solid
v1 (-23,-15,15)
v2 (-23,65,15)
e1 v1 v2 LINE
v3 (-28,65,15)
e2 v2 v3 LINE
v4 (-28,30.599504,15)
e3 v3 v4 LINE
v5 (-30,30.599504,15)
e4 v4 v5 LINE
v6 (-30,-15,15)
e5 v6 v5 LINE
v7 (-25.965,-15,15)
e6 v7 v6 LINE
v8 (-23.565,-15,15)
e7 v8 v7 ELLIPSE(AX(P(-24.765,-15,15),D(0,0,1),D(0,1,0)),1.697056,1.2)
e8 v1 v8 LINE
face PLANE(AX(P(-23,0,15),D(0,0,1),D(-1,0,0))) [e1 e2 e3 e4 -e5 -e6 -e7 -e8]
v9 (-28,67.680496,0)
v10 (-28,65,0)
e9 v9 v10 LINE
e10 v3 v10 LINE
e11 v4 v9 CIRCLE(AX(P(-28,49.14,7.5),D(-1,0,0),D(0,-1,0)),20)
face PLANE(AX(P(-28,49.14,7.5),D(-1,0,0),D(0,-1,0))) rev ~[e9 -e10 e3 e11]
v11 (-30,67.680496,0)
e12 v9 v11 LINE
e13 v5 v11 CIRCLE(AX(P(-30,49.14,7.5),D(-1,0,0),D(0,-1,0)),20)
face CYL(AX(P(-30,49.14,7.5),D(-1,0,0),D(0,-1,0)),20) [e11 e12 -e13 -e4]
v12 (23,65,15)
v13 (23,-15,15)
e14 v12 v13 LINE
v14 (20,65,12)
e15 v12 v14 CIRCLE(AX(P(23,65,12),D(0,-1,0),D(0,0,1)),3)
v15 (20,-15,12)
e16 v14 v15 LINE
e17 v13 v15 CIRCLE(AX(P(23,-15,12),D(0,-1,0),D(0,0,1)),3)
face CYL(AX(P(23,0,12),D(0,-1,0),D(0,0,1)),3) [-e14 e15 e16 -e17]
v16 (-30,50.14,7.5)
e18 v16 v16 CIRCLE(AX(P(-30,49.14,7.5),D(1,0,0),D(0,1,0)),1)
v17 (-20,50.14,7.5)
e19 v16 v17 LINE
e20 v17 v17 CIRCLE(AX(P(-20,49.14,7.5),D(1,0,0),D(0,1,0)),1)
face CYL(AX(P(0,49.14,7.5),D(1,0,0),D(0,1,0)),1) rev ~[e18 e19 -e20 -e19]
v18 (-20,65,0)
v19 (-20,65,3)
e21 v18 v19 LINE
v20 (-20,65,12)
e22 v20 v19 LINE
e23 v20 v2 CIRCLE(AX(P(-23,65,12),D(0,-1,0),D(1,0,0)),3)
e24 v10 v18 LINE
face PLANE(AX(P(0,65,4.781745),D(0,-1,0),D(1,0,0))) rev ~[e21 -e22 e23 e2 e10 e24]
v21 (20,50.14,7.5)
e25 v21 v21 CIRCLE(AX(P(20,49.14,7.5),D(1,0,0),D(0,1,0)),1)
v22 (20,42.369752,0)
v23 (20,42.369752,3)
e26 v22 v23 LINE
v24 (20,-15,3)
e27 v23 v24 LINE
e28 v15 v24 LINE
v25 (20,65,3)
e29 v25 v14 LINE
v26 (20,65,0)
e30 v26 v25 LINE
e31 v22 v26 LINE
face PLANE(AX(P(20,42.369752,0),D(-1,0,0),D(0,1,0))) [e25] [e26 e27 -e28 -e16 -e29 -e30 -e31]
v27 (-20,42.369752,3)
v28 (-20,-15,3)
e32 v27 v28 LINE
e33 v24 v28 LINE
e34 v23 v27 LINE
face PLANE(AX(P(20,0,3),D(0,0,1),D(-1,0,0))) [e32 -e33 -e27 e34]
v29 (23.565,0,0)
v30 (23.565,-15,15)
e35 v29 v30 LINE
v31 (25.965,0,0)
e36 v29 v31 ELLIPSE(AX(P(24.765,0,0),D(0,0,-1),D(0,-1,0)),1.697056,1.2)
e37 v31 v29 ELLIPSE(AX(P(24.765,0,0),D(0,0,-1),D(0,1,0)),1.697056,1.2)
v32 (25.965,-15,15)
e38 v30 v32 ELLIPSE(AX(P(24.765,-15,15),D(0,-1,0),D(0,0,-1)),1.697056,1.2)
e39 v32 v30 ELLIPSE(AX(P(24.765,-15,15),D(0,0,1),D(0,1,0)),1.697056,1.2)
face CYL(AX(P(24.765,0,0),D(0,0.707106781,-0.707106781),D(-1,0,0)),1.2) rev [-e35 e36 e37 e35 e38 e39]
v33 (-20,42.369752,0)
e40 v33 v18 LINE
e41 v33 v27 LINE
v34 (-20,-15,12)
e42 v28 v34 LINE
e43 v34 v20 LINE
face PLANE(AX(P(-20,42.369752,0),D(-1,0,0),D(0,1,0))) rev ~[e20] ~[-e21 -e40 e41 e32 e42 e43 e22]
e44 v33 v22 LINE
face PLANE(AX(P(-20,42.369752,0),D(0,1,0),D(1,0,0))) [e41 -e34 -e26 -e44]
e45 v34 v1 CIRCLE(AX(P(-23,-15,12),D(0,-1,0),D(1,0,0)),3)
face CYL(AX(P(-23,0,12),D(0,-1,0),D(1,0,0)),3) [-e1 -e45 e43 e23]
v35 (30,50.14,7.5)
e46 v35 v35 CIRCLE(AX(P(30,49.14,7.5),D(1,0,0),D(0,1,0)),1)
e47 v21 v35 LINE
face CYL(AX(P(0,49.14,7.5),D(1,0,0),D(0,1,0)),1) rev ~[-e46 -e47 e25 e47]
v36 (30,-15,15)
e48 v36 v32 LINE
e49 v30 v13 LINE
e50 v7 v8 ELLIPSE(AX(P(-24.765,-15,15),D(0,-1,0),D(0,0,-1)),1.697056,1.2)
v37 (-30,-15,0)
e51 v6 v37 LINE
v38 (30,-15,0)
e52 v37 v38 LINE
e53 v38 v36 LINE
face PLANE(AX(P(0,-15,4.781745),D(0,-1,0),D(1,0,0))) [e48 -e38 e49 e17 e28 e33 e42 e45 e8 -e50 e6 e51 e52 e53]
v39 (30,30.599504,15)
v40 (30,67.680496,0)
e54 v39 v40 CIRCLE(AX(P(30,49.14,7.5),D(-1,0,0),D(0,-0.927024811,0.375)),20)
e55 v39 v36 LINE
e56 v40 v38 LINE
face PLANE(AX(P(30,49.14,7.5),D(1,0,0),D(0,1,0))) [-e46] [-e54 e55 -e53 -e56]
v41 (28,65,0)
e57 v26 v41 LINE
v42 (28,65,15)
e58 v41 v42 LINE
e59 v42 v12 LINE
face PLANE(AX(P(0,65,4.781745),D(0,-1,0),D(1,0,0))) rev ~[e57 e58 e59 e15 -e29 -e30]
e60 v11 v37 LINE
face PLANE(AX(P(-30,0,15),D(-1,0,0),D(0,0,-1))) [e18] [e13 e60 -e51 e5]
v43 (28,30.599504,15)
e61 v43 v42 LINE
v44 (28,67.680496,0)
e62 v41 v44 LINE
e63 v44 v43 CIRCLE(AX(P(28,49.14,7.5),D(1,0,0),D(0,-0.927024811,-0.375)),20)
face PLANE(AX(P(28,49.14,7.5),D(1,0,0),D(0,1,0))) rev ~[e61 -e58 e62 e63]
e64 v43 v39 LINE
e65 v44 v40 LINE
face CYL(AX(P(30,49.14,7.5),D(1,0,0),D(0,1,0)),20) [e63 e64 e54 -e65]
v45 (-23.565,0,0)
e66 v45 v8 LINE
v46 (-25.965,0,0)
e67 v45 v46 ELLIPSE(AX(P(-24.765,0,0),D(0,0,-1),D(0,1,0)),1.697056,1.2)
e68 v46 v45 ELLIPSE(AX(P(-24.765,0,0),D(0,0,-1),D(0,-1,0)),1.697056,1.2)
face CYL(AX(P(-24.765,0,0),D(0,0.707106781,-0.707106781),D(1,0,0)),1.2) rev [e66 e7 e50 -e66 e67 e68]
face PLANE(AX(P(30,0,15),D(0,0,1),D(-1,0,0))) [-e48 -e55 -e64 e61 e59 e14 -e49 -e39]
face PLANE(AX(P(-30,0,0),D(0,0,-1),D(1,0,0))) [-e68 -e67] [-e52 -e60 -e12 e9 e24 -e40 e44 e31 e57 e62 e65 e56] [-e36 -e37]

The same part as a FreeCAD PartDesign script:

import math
import FreeCAD as App
import Part
import Sketcher

doc = App.newDocument("Part")
body = doc.addObject("PartDesign::Body", "Body")

# Sketch on XZ plane
sketch1 = doc.addObject("Sketcher::SketchObject", "Sketch")
body.addObject(sketch1)
sketch1.AttachmentSupport = (doc.XZ_Plane, [""])
sketch1.MapMode = "FlatFace"
sketch1.addGeometry(Part.LineSegment(App.Vector(-30, 15, 0), App.Vector(-30, 0, 0)), False)
sketch1.addGeometry(Part.LineSegment(App.Vector(-30, 0, 0), App.Vector(30, 0, 0)), False)
sketch1.addGeometry(Part.LineSegment(App.Vector(30, 0, 0), App.Vector(30, 15, 0)), False)
sketch1.addGeometry(Part.LineSegment(App.Vector(30, 15, 0), App.Vector(23, 15, 0)), False)
sketch1.addGeometry(Part.ArcOfCircle(Part.Circle(App.Vector(23, 12, 0), App.Vector(0, 0, 1), 3), math.radians(90), math.radians(180)), False)
sketch1.addGeometry(Part.LineSegment(App.Vector(20, 12, 0), App.Vector(20, 3, 0)), False)
sketch1.addGeometry(Part.LineSegment(App.Vector(20, 3, 0), App.Vector(-20, 3, 0)), False)
sketch1.addGeometry(Part.LineSegment(App.Vector(-20, 3, 0), App.Vector(-20, 12, 0)), False)
sketch1.addGeometry(Part.ArcOfCircle(Part.Circle(App.Vector(-23, 12, 0), App.Vector(0, 0, 1), 3), math.radians(0), math.radians(90)), False)
sketch1.addGeometry(Part.LineSegment(App.Vector(-23, 15, 0), App.Vector(-30, 15, 0)), False)
sketch1.addConstraint(Sketcher.Constraint("Coincident", 0, 2, 1, 1))
sketch1.addConstraint(Sketcher.Constraint("Coincident", 1, 2, 2, 1))
sketch1.addConstraint(Sketcher.Constraint("Coincident", 2, 2, 3, 1))
sketch1.addConstraint(Sketcher.Constraint("Tangent", 3, 2, 4, 1))
sketch1.addConstraint(Sketcher.Constraint("Tangent", 4, 2, 5, 1))
sketch1.addConstraint(Sketcher.Constraint("Coincident", 5, 2, 6, 1))
sketch1.addConstraint(Sketcher.Constraint("Coincident", 6, 2, 7, 1))
sketch1.addConstraint(Sketcher.Constraint("Tangent", 7, 2, 8, 1))
sketch1.addConstraint(Sketcher.Constraint("Tangent", 8, 2, 9, 1))
sketch1.addConstraint(Sketcher.Constraint("Coincident", 9, 2, 0, 1))
sketch1.addConstraint(Sketcher.Constraint("Vertical", 0))
sketch1.addConstraint(Sketcher.Constraint("Horizontal", 1))
sketch1.addConstraint(Sketcher.Constraint("Vertical", 2))
sketch1.addConstraint(Sketcher.Constraint("Horizontal", 3))
sketch1.addConstraint(Sketcher.Constraint("Vertical", 5))
sketch1.addConstraint(Sketcher.Constraint("Horizontal", 6))
sketch1.addConstraint(Sketcher.Constraint("Vertical", 7))
sketch1.addConstraint(Sketcher.Constraint("Horizontal", 9))
sketch1.addConstraint(Sketcher.Constraint("Equal", 4, 8))
sketch1.addConstraint(Sketcher.Constraint("Symmetric", 0, 2, 1, 2, -1, 1))
sketch1.addConstraint(Sketcher.Constraint("Symmetric", 4, 3, 8, 3, -2))
sketch1.addConstraint(Sketcher.Constraint("Radius", 4, 3.0))
sketch1.addConstraint(Sketcher.Constraint("DistanceX", 1, 1, 1, 2, 60.0))
sketch1.addConstraint(Sketcher.Constraint("DistanceX", 3, 2, 3, 1, 7.0))
sketch1.addConstraint(Sketcher.Constraint("DistanceY", 0, 2, 0, 1, 15.0))
sketch1.addConstraint(Sketcher.Constraint("DistanceY", 5, 2, 5, 1, 9.0))
pad1 = doc.addObject("PartDesign::Pad", "Pad")
body.addObject(pad1)
pad1.Profile = sketch1
pad1.Type = "TwoLengths"
pad1.Length = 15
pad1.Length2 = 65

# Sketch on an angled plane
sketch2 = doc.addObject("Sketcher::SketchObject", "Sketch001")
body.addObject(sketch2)
sketch2.Placement = App.Placement(App.Vector(0, 0, 0), App.Rotation(App.Vector(1, 0, 0), App.Vector(0, 0.707106781, 0.707106781), App.Vector(0, -0.707106781, 0.707106781), "ZXY"))
sketch2.addGeometry(Part.Circle(App.Vector(24.8, 0, 0), App.Vector(0, 0, 1), 1.2), False)
sketch2.addGeometry(Part.Circle(App.Vector(-24.8, 0, 0), App.Vector(0, 0, 1), 1.2), False)
sketch2.addConstraint(Sketcher.Constraint("Equal", 0, 1))
sketch2.addConstraint(Sketcher.Constraint("Symmetric", 0, 3, 1, 3, -1, 1))
sketch2.addConstraint(Sketcher.Constraint("PointOnObject", 0, 3, -1))
sketch2.addConstraint(Sketcher.Constraint("Diameter", 0, 2.4))
sketch2.addConstraint(Sketcher.Constraint("DistanceX", 1, 3, 0, 3, 49.53))
pocket1 = doc.addObject("PartDesign::Pocket", "Pocket")
body.addObject(pocket1)
pocket1.Profile = sketch2
pocket1.Type = "ThroughAll"
pocket1.Midplane = True

# Sketch on YZ plane
sketch3 = doc.addObject("Sketcher::SketchObject", "Sketch002")
body.addObject(sketch3)
sketch3.AttachmentSupport = (doc.YZ_Plane, [""])
sketch3.MapMode = "FlatFace"
sketch3.AttachmentOffset = App.Placement(App.Vector(0, 0, 30), App.Rotation())
sketch3.addGeometry(Part.Circle(App.Vector(49, 8, 0), App.Vector(0, 0, 1), 20), False)
sketch3.addConstraint(Sketcher.Constraint("Diameter", 0, 40.0))
sketch3.addConstraint(Sketcher.Constraint("DistanceY", -1, 1, 0, 3, 7.5))
sketch3.addConstraint(Sketcher.Constraint("DistanceX", -1, 1, 0, 3, 49.14))
pad2 = doc.addObject("PartDesign::Pad", "Pad001")
body.addObject(pad2)
pad2.Profile = sketch3
pad2.Length = 2
pad2.Reversed = True

# Sketch on YZ plane
sketch4 = doc.addObject("Sketcher::SketchObject", "Sketch003")
body.addObject(sketch4)
sketch4.AttachmentSupport = (doc.YZ_Plane, [""])
sketch4.MapMode = "FlatFace"
sketch4.AttachmentOffset = App.Placement(App.Vector(0, 0, -30), App.Rotation())
sketch4.addGeometry(Part.Circle(App.Vector(49, 8, 0), App.Vector(0, 0, 1), 20), False)
sketch4.addConstraint(Sketcher.Constraint("Diameter", 0, 40.0))
sketch4.addConstraint(Sketcher.Constraint("DistanceY", -1, 1, 0, 3, 7.5))
sketch4.addConstraint(Sketcher.Constraint("DistanceX", -1, 1, 0, 3, 49.14))
pad3 = doc.addObject("PartDesign::Pad", "Pad002")
body.addObject(pad3)
pad3.Profile = sketch4
pad3.Length = 2

# Sketch on YZ plane
sketch5 = doc.addObject("Sketcher::SketchObject", "Sketch004")
body.addObject(sketch5)
sketch5.AttachmentSupport = (doc.YZ_Plane, [""])
sketch5.MapMode = "FlatFace"
sketch5.addGeometry(Part.LineSegment(App.Vector(0, 0, 0), App.Vector(0, -21, 0)), False)
sketch5.addGeometry(Part.LineSegment(App.Vector(0, -21, 0), App.Vector(125, -21, 0)), False)
sketch5.addGeometry(Part.LineSegment(App.Vector(125, -21, 0), App.Vector(125, 0, 0)), False)
sketch5.addGeometry(Part.LineSegment(App.Vector(125, 0, 0), App.Vector(0, 0, 0)), False)
sketch5.addConstraint(Sketcher.Constraint("Coincident", 0, 2, 1, 1))
sketch5.addConstraint(Sketcher.Constraint("Coincident", 1, 2, 2, 1))
sketch5.addConstraint(Sketcher.Constraint("Coincident", 2, 2, 3, 1))
sketch5.addConstraint(Sketcher.Constraint("Coincident", 3, 2, 0, 1))
sketch5.addConstraint(Sketcher.Constraint("Vertical", 0))
sketch5.addConstraint(Sketcher.Constraint("Horizontal", 1))
sketch5.addConstraint(Sketcher.Constraint("Vertical", 2))
sketch5.addConstraint(Sketcher.Constraint("Horizontal", 3))
sketch5.addConstraint(Sketcher.Constraint("Coincident", 3, 2, -1, 1))
sketch5.addConstraint(Sketcher.Constraint("DistanceY", 0, 2, 0, 1, 20.905988))
sketch5.addConstraint(Sketcher.Constraint("DistanceX", 1, 1, 1, 2, 125.272244))
pocket2 = doc.addObject("PartDesign::Pocket", "Pocket001")
body.addObject(pocket2)
pocket2.Profile = sketch5
pocket2.Length = 80
pocket2.Midplane = True

# Sketch on XY plane
sketch6 = doc.addObject("Sketcher::SketchObject", "Sketch005")
body.addObject(sketch6)
sketch6.AttachmentSupport = (doc.XY_Plane, [""])
sketch6.MapMode = "FlatFace"
sketch6.addGeometry(Part.LineSegment(App.Vector(-20, 65, 0), App.Vector(-20, 42, 0)), False)
sketch6.addGeometry(Part.LineSegment(App.Vector(-20, 42, 0), App.Vector(20, 42, 0)), False)
sketch6.addGeometry(Part.LineSegment(App.Vector(20, 42, 0), App.Vector(20, 65, 0)), False)
sketch6.addGeometry(Part.LineSegment(App.Vector(20, 65, 0), App.Vector(-20, 65, 0)), False)
sketch6.addConstraint(Sketcher.Constraint("Coincident", 0, 2, 1, 1))
sketch6.addConstraint(Sketcher.Constraint("Coincident", 1, 2, 2, 1))
sketch6.addConstraint(Sketcher.Constraint("Coincident", 2, 2, 3, 1))
sketch6.addConstraint(Sketcher.Constraint("Coincident", 3, 2, 0, 1))
sketch6.addConstraint(Sketcher.Constraint("Vertical", 0))
sketch6.addConstraint(Sketcher.Constraint("Horizontal", 1))
sketch6.addConstraint(Sketcher.Constraint("Vertical", 2))
sketch6.addConstraint(Sketcher.Constraint("Horizontal", 3))
sketch6.addConstraint(Sketcher.Constraint("DistanceX", 1, 1, 1, 2, 40.0))
sketch6.addConstraint(Sketcher.Constraint("DistanceX", 0, 2, -1, 1, 20.0))
sketch6.addConstraint(Sketcher.Constraint("DistanceY", -1, 1, 2, 2, 65.0))
sketch6.addConstraint(Sketcher.Constraint("DistanceY", 0, 2, 0, 1, 22.630248))
pocket3 = doc.addObject("PartDesign::Pocket", "Pocket002")
body.addObject(pocket3)
pocket3.Profile = sketch6
pocket3.Length = 10
pocket3.Reversed = True

# Sketch on YZ plane
sketch7 = doc.addObject("Sketcher::SketchObject", "Sketch006")
body.addObject(sketch7)
sketch7.AttachmentSupport = (doc.YZ_Plane, [""])
sketch7.MapMode = "FlatFace"
sketch7.addGeometry(Part.Circle(App.Vector(49.1, 7.5, 0), App.Vector(0, 0, 1), 1), False)
sketch7.addConstraint(Sketcher.Constraint("Diameter", 0, 2.0))
sketch7.addConstraint(Sketcher.Constraint("DistanceY", -1, 1, 0, 3, 7.5))
sketch7.addConstraint(Sketcher.Constraint("DistanceX", -1, 1, 0, 3, 49.14))
pocket4 = doc.addObject("PartDesign::Pocket", "Pocket003")
body.addObject(pocket4)
pocket4.Profile = sketch7
pocket4.Length = 100
pocket4.Midplane = True

doc.recompute()
